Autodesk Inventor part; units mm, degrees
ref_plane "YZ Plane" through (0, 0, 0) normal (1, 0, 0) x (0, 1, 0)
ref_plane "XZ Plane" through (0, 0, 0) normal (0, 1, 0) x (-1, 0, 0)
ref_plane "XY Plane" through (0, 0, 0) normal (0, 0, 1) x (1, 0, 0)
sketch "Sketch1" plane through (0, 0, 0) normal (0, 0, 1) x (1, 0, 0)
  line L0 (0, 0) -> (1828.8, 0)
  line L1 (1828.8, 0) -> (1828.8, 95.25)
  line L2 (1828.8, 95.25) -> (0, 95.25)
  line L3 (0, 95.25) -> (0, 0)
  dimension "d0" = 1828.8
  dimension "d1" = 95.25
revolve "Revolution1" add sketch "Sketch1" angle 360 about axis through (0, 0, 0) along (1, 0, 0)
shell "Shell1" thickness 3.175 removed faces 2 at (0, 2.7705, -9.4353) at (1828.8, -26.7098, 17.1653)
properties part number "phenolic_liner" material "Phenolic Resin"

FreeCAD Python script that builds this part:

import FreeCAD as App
import Part
import Sketcher
from FreeCAD import Vector
Q = App.Units.Quantity


def faces_at(feature, points):
    """Names of the faces that lie closest to the given points."""
    faces = feature.Shape.Faces
    near = lambda p: min(range(len(faces)), key=lambda i: faces[i].distToShape(Part.Vertex(*p))[0])
    return sorted({f"Face{near(p) + 1}" for p in points})

doc = App.newDocument("Part")
body = doc.addObject("PartDesign::Body", "Body")

# Sketch on XY plane
sketch1 = body.newObject("Sketcher::SketchObject", "Sketch")
sketch1.AttachmentSupport = (doc.getObject("XY_Plane"), [""])
sketch1.MapMode = "FlatFace"
sketch1.addGeometry(Part.LineSegment(Vector(0, 95.25, 0), Vector(0, 0, 0)), False)
sketch1.addGeometry(Part.LineSegment(Vector(0, 0, 0), Vector(1828.8, 0, 0)), False)
sketch1.addGeometry(Part.LineSegment(Vector(1828.8, 0, 0), Vector(1828.8, 95.25, 0)), False)
sketch1.addGeometry(Part.LineSegment(Vector(1828.8, 95.25, 0), Vector(0, 95.25, 0)), False)
sketch1.addConstraint(Sketcher.Constraint("Coincident", 0, 2, 1, 1))
sketch1.addConstraint(Sketcher.Constraint("Coincident", 1, 2, 2, 1))
sketch1.addConstraint(Sketcher.Constraint("Coincident", 2, 2, 3, 1))
sketch1.addConstraint(Sketcher.Constraint("Coincident", 3, 2, 0, 1))
sketch1.addConstraint(Sketcher.Constraint("Vertical", 0))
sketch1.addConstraint(Sketcher.Constraint("Horizontal", 1))
sketch1.addConstraint(Sketcher.Constraint("Vertical", 2))
sketch1.addConstraint(Sketcher.Constraint("Horizontal", 3))
sketch1.addConstraint(Sketcher.Constraint("Coincident", 0, 2, -1, 1))
sketch1.addConstraint(Sketcher.Constraint("DistanceX", 1, 1, 1, 2, Q("72 in")))
sketch1.addConstraint(Sketcher.Constraint("DistanceY", 0, 2, 0, 1, Q("3.75 in")))
revolution = body.newObject("PartDesign::Revolution", "Revolution")
revolution.Profile = sketch1
revolution.ReferenceAxis = (sketch1, ["H_Axis"])
revolution.Angle = 360
doc.recompute()

thickness = body.newObject("PartDesign::Thickness", "Thickness")
thickness.Base = (revolution, faces_at(revolution, [(0, 2.771, -9.435), (1828.8, -26.71, 17.165)]))
thickness.Value = Q("0.125 in")
thickness.Reversed = True
thickness.Join = "Intersection"

doc.recompute()
